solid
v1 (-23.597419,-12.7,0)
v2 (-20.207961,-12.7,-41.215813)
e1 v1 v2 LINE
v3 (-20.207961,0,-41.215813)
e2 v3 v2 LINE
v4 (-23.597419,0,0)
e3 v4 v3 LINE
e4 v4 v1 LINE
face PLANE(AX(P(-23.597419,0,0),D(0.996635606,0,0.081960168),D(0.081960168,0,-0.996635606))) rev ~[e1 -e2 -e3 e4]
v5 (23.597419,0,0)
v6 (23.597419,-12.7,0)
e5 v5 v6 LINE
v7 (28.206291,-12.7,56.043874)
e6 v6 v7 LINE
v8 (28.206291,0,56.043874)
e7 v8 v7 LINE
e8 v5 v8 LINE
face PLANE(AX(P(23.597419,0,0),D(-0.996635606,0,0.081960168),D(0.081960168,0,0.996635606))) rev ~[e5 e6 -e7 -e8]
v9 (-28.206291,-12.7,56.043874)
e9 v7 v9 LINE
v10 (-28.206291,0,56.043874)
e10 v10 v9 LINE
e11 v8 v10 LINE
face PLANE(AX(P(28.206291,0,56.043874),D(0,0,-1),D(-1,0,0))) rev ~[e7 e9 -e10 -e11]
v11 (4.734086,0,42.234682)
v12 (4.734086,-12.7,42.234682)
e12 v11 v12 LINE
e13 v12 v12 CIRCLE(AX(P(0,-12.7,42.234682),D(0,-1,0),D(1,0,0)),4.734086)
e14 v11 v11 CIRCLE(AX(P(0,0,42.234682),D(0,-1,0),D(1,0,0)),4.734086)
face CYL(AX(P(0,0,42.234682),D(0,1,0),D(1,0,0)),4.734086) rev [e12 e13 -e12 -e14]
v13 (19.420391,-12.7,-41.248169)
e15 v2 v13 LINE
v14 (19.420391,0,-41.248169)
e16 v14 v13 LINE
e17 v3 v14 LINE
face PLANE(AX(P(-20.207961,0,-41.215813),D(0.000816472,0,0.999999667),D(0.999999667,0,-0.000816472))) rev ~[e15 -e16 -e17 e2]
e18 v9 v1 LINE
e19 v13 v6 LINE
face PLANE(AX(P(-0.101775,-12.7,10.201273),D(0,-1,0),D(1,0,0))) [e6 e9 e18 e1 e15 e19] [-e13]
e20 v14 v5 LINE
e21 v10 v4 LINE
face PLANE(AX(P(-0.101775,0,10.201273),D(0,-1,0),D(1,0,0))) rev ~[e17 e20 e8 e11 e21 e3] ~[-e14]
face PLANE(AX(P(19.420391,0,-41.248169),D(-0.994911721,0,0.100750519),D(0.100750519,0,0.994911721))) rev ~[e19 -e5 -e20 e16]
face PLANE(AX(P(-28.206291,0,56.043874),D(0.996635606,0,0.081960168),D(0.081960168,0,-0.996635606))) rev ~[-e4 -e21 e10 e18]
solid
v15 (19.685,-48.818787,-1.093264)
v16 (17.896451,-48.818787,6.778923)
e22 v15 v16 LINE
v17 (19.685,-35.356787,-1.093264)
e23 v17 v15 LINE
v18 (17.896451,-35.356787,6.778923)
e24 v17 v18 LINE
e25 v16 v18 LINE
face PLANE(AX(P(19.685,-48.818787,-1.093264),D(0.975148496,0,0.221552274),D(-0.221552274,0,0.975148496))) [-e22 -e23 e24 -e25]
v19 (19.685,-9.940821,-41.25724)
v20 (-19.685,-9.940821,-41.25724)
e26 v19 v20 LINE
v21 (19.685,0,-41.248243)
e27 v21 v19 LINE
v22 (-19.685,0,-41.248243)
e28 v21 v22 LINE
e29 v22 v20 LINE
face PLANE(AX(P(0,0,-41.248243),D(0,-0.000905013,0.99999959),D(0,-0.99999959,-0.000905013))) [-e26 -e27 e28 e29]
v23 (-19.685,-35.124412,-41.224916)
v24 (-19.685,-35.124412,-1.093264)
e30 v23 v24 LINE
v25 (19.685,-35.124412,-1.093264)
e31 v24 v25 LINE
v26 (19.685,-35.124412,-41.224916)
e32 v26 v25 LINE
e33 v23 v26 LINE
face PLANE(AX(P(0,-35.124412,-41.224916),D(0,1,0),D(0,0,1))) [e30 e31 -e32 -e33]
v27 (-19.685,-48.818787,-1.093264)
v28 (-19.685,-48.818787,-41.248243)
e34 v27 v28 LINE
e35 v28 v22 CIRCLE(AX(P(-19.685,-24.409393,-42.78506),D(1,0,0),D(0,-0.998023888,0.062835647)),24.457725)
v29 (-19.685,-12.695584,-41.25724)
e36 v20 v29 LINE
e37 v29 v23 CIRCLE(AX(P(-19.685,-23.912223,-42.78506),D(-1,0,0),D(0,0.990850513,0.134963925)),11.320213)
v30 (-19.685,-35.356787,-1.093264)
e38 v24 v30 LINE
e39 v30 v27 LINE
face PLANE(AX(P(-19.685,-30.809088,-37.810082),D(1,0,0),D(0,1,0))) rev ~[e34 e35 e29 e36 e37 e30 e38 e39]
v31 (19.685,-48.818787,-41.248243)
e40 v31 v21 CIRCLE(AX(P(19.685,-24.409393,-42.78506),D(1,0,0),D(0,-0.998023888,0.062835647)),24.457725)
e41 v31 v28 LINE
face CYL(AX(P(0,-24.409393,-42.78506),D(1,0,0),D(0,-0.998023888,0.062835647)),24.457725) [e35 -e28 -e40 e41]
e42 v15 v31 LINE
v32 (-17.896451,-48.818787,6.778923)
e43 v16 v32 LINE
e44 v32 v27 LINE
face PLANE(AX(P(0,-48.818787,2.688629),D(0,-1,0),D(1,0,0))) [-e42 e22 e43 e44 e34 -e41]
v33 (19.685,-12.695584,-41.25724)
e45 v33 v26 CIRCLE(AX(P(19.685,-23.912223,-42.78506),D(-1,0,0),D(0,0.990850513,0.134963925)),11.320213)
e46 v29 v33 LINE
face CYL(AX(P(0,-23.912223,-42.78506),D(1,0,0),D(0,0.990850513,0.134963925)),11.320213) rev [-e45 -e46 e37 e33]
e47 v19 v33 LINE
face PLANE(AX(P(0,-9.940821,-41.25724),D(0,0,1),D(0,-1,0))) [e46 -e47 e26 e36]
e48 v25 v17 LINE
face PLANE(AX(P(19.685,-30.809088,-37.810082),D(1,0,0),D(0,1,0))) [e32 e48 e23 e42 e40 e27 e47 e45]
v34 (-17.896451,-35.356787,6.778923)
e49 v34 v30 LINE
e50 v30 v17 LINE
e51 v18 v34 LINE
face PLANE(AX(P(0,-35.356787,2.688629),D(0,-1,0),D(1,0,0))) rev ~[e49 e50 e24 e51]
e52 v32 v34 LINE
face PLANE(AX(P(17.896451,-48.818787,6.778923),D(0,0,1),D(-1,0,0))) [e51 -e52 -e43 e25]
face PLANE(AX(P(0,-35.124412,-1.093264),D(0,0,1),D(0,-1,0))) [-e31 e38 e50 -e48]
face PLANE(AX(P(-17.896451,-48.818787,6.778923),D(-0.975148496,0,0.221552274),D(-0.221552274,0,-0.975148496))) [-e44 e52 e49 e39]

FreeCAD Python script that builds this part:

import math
import FreeCAD as App
import Part
import Sketcher
from FreeCAD import Vector
Q = App.Units.Quantity


def add_polygon(sketch, points):
    """Adds a closed chain of lines whose ends are joined by coincident constraints."""
    first, n = sketch.GeometryCount, len(points)
    for a, b in zip(points, points[1:] + points[:1]):
        sketch.addGeometry(Part.LineSegment(App.Vector(*a, 0), App.Vector(*b, 0)), False)
    for i in range(n):
        sketch.addConstraint(Sketcher.Constraint("Coincident", first + i, 2, first + (i + 1) % n, 1))

doc = App.newDocument("Part")
params = doc.addObject("Spreadsheet::Sheet", "Params")
for row, (alias, value) in enumerate([
    ("pad1_length", "0.5 in"),
    ("pad2_length", "1.55 in"),
    ("sketch3_width", "1.55 in"),
    ("pad3_length", "0.53 in"),
], start=1):
    params.set(f"A{row}", alias)
    params.set(f"B{row}", "=" + value)
    params.setAlias(f"B{row}", alias)

body = doc.addObject("PartDesign::Body", "Body")

# Sketch on XZ plane
sketch1 = body.newObject("Sketcher::SketchObject", "Sketch")
sketch1.AttachmentSupport = (doc.getObject("XZ_Plane"), [""])
sketch1.MapMode = "FlatFace"
add_polygon(sketch1, [(28.2, 56), (-28.2, 56), (-23.6, 0), (-20.2, -41.2), (19.4, -41.2), (23.6, 0)])  # lines 0-5
sketch1.addGeometry(Part.Circle(Vector(0, 42.2, 0), Vector(0, 0, 1), 4.7), False)  # 6
sketch1.addConstraint([
    Sketcher.Constraint("Horizontal", 0),
    Sketcher.Constraint("Symmetric", 1, 2, 4, 2, -1, 1),
    Sketcher.Constraint("PointOnObject", 6, 3, -2),
    Sketcher.Constraint("PointOnObject", 1, 2, -1),
    Sketcher.Constraint("Parallel", 1, 2),
    Sketcher.Constraint("Equal", 1, 5),
    Sketcher.Constraint("Diameter", 6, 9.468172),
    Sketcher.Constraint("Distance", 1, Q("2.2139002 in")),
    Sketcher.Constraint("DistanceX", 0, 2, 0, 1, 56.412581),
    Sketcher.Constraint("DistanceX", 3, 2, 5, 2, 8.7859),
    Sketcher.Constraint("DistanceY", -1, 1, 6, 3, 42.234682),
    Sketcher.Constraint("DistanceX", 1, 2, -1, 1, 23.597419),
    Sketcher.Constraint("DistanceX", 2, 2, -1, 1, 20.207961),
    Sketcher.Constraint("DistanceY", 3, 2, -1, 1, 41.248169),
])
pad1 = body.newObject("PartDesign::Pad", "Pad")
pad1.Profile = sketch1
pad1.setExpression("Length", "Params.pad1_length")
body2 = doc.addObject("PartDesign::Body", "Body001")

# Sketch on YZ plane
sketch2 = body2.newObject("Sketcher::SketchObject", "Sketch001")
sketch2.AttachmentSupport = (doc.getObject("YZ_Plane001"), [""])
sketch2.MapMode = "FlatFace"
sketch2.addGeometry([
    Part.LineSegment(Vector(-9.9, -41.3, 0), Vector(-12.7, -41.3, 0)),  # 0
    Part.ArcOfCircle(Part.Circle(Vector(-23.9, -42.8, 0), Vector(0, 0, 1), 11.3), math.radians(172), math.radians(368)),  # 1
    Part.LineSegment(Vector(-35.1, -41.2, 0), Vector(-35.1, -1.1, 0)),  # 2
    Part.LineSegment(Vector(-35.1, -1.1, 0), Vector(-48.8, -1.1, 0)),  # 3
    Part.LineSegment(Vector(-48.8, -1.1, 0), Vector(-48.8, -41.2, 0)),  # 4
    Part.ArcOfCircle(Part.Circle(Vector(-24.4, -42.8, 0), Vector(0, 0, 1), 24.5), math.radians(176), math.radians(364)),  # 5
    Part.LineSegment(Vector(0, -41.2, 0), Vector(-9.9, -41.3, 0)),  # 6
], False)
sketch2.addConstraint([
    Sketcher.Constraint("Coincident", 0, 2, 1, 2),
    Sketcher.Constraint("Coincident", 1, 1, 2, 1),
    Sketcher.Constraint("Coincident", 2, 2, 3, 1),
    Sketcher.Constraint("Coincident", 3, 2, 4, 1),
    Sketcher.Constraint("Coincident", 4, 2, 5, 1),
    Sketcher.Constraint("Coincident", 5, 2, 6, 1),
    Sketcher.Constraint("Coincident", 6, 2, 0, 1),
    Sketcher.Constraint("Horizontal", 0),
    Sketcher.Constraint("Vertical", 2),
    Sketcher.Constraint("Horizontal", 3),
    Sketcher.Constraint("Vertical", 4),
    Sketcher.Constraint("PointOnObject", 5, 2, -2),
    Sketcher.Constraint("Horizontal", 1, 3, 5, 3),
    Sketcher.Constraint("Horizontal", 4, 2, 5, 2),
    Sketcher.Constraint("Radius", 1, 11.320213),
    Sketcher.Constraint("Radius", 5, 24.457725),
    Sketcher.Constraint("DistanceX", 1, 3, 0, 2, Q("0.4416 in")),
    Sketcher.Constraint("DistanceY", 2, 1, 2, 2, 40.131652),
    Sketcher.Constraint("DistanceY", 4, 2, 4, 1, 40.15498),
    Sketcher.Constraint("DistanceX", 0, 2, 0, 1, 2.754763),
    Sketcher.Constraint("DistanceX", 3, 2, 3, 1, 13.694375),
    Sketcher.Constraint("DistanceY", 1, 3, -1, 1, 42.78506),
    Sketcher.Constraint("DistanceX", 1, 1, -1, 1, 35.124412),
])
pad2 = body2.newObject("PartDesign::Pad", "Pad001")
pad2.Profile = sketch2
pad2.setExpression("Length", "Params.pad2_length")
pad2.Midplane = True

# Sketch on XZ plane
sketch3 = body2.newObject("Sketcher::SketchObject", "Sketch002")
sketch3.AttachmentSupport = (doc.getObject("XZ_Plane001"), [""])
sketch3.MapMode = "FlatFace"
sketch3.AttachmentOffset = App.Placement(Vector(0, 0, 48.818787), App.Rotation())
add_polygon(sketch3, [(-18, 7), (-20, -1), (20, -1), (18, 7)])  # lines 0-3
sketch3.addConstraint([
    Sketcher.Constraint("Horizontal", 1),
    Sketcher.Constraint("Horizontal", 3),
    Sketcher.Constraint("Equal", 0, 2),
    Sketcher.Constraint("DistanceX", 1, 1, 1, 2, Q("1.55 in")),
    Sketcher.Constraint("DistanceX", 0, 2, -1, 1, Q("0.775 in")),
    Sketcher.Constraint("DistanceX", 3, 2, 3, 1, 35.792902),
    Sketcher.Constraint("Distance", 0, 8.072808),
    Sketcher.Constraint("DistanceY", 0, 2, -1, 1, 1.093264),
])
sketch3.setExpression("Constraints[7]", "Params.sketch3_width")
pad3 = body2.newObject("PartDesign::Pad", "Pad002")
pad3.Profile = sketch3
pad3.setExpression("Length", "Params.pad3_length")
pad3.Reversed = True

doc.recompute()
